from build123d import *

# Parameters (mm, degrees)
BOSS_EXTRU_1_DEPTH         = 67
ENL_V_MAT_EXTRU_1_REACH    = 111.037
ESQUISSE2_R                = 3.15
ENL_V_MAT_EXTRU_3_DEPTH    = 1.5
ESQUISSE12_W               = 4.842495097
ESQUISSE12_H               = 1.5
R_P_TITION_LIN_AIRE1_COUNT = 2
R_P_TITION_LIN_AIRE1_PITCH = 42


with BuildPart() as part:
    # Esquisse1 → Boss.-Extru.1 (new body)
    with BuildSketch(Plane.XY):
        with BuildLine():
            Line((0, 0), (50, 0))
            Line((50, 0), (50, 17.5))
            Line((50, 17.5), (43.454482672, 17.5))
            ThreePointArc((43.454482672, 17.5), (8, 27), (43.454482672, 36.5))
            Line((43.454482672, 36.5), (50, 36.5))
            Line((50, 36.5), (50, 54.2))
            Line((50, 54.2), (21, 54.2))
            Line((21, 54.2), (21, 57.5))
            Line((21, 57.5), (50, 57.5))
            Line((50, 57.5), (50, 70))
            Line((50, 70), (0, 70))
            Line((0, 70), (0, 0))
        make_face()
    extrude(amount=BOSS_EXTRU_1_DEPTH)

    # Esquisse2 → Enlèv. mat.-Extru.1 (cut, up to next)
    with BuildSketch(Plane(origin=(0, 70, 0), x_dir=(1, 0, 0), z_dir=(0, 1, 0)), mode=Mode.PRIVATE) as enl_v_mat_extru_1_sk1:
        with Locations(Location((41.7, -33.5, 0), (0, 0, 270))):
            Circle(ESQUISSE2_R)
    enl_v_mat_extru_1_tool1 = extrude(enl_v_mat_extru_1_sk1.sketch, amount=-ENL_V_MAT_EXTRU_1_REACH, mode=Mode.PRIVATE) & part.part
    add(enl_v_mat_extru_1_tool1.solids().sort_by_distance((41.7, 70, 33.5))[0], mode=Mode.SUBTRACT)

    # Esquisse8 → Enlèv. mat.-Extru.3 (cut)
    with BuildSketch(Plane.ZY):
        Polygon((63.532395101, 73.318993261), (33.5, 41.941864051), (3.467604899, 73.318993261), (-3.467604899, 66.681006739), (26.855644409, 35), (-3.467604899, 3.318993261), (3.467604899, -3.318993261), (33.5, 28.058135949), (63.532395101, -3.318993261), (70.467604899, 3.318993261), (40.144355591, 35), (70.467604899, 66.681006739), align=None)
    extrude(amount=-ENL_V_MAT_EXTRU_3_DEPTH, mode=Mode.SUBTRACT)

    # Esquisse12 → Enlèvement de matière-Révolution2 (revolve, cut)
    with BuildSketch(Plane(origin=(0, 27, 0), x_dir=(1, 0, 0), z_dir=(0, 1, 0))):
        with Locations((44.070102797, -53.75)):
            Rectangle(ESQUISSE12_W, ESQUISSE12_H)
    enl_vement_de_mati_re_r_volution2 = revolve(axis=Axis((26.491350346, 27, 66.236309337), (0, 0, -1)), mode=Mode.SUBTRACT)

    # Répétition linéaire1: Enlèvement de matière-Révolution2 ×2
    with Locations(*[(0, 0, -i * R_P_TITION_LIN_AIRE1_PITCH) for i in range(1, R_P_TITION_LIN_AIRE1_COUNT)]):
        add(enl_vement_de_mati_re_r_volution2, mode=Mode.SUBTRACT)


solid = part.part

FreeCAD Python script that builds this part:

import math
import FreeCAD as App
import Part
import Sketcher

V = App.Vector
Q = App.Units.Quantity

doc = App.newDocument("Part")
body = doc.addObject("PartDesign::Body", "Body")

# Sketch on XY plane
sketch1 = body.newObject("Sketcher::SketchObject", "Sketch")
sketch1.AttachmentSupport = (doc.getObject("XY_Plane"), [""])
sketch1.MapMode = "FlatFace"
sketch1.addGeometry([
    Part.LineSegment(V(0, 0, 0), V(50, 0, 0)),  # 0
    Part.LineSegment(V(50, 0, 0), V(50, 17.5, 0)),  # 1
    Part.LineSegment(V(50, 17.5, 0), V(43.454483, 17.5, 0)),  # 2
    Part.ArcOfCircle(Part.Circle(V(27, 27, 0), V(0, 0, 1), 19), math.radians(30), math.radians(330)),  # 3
    Part.LineSegment(V(43.454483, 36.5, 0), V(50, 36.5, 0)),  # 4
    Part.LineSegment(V(50, 36.5, 0), V(50, 54.2, 0)),  # 5
    Part.LineSegment(V(50, 54.2, 0), V(21, 54.2, 0)),  # 6
    Part.LineSegment(V(21, 54.2, 0), V(21, 57.5, 0)),  # 7
    Part.LineSegment(V(21, 57.5, 0), V(50, 57.5, 0)),  # 8
    Part.LineSegment(V(50, 57.5, 0), V(50, 70, 0)),  # 9
    Part.LineSegment(V(50, 70, 0), V(0, 70, 0)),  # 10
    Part.LineSegment(V(0, 70, 0), V(0, 0, 0)),  # 11
], False)
sketch1.addConstraint([
    Sketcher.Constraint("Coincident", 0, 2, 1, 1),
    Sketcher.Constraint("Coincident", 1, 2, 2, 1),
    Sketcher.Constraint("Coincident", 2, 2, 3, 2),
    Sketcher.Constraint("Coincident", 3, 1, 4, 1),
    Sketcher.Constraint("Coincident", 4, 2, 5, 1),
    Sketcher.Constraint("Coincident", 5, 2, 6, 1),
    Sketcher.Constraint("Coincident", 6, 2, 7, 1),
    Sketcher.Constraint("Coincident", 7, 2, 8, 1),
    Sketcher.Constraint("Coincident", 8, 2, 9, 1),
    Sketcher.Constraint("Coincident", 9, 2, 10, 1),
    Sketcher.Constraint("Coincident", 10, 2, 11, 1),
    Sketcher.Constraint("Coincident", 11, 2, 0, 1),
    Sketcher.Constraint("Horizontal", 0),
    Sketcher.Constraint("Vertical", 1),
    Sketcher.Constraint("Horizontal", 2),
    Sketcher.Constraint("Horizontal", 4),
    Sketcher.Constraint("Vertical", 5),
    Sketcher.Constraint("Horizontal", 6),
    Sketcher.Constraint("Vertical", 7),
    Sketcher.Constraint("Horizontal", 8),
    Sketcher.Constraint("Vertical", 9),
    Sketcher.Constraint("Horizontal", 10),
    Sketcher.Constraint("Vertical", 11),
    Sketcher.Constraint("Coincident", 11, 2, -1, 1),
    Sketcher.Constraint("Vertical", 2, 2, 3, 1),
    Sketcher.Constraint("Vertical", 1, 2, 4, 2),
    Sketcher.Constraint("Vertical", 5, 2, 8, 2),
    Sketcher.Constraint("Radius", 3, Q("19 mm")),
    Sketcher.Constraint("DistanceX", 0, 1, 0, 2, Q("50 mm")),
    Sketcher.Constraint("DistanceX", 6, 2, 6, 1, Q("29 mm")),
    Sketcher.Constraint("DistanceY", 11, 2, 11, 1, Q("70 mm")),
    Sketcher.Constraint("DistanceY", 1, 1, 1, 2, Q("17.5 mm")),
    Sketcher.Constraint("DistanceY", 5, 1, 5, 2, Q("17.7 mm")),
    Sketcher.Constraint("DistanceY", 7, 1, 7, 2, Q("3.3 mm")),
    Sketcher.Constraint("DistanceY", 9, 1, 9, 2, Q("12.5 mm")),
    Sketcher.Constraint("DistanceX", -1, 1, 3, 3, Q("27 mm")),
])
pad1 = body.newObject("PartDesign::Pad", "Pad")
pad1.Profile = sketch1
pad1.Length = 67

# Sketch on XZ plane
sketch2 = body.newObject("Sketcher::SketchObject", "Sketch001")
sketch2.AttachmentSupport = (doc.getObject("XZ_Plane"), [""])
sketch2.MapMode = "FlatFace"
sketch2.AttachmentOffset = App.Placement(V(0, 0, -70), App.Rotation())
sketch2.addGeometry(Part.Circle(V(41.7, 33.5, 0), V(0, 0, 1), 3.15), False)
sketch2.addConstraint([
    Sketcher.Constraint("Diameter", 0, Q("6.3 mm")),
    Sketcher.Constraint("DistanceX", -1, 1, 0, 3, Q("41.7 mm")),
    Sketcher.Constraint("DistanceY", -1, 1, 0, 3, Q("33.5 mm")),
])
pocket1 = body.newObject("PartDesign::Pocket", "Pocket")
pocket1.Profile = sketch2
pocket1.Type = "UpToFirst"
pocket1.Reversed = True

# Sketch on YZ plane
sketch3 = body.newObject("Sketcher::SketchObject", "Sketch002")
sketch3.AttachmentSupport = (doc.getObject("YZ_Plane"), [""])
sketch3.MapMode = "FlatFace"
sketch3.addGeometry([
    Part.LineSegment(V(73.318993, 63.532395, 0), V(41.941864, 33.5, 0)),  # 0
    Part.LineSegment(V(41.941864, 33.5, 0), V(73.318993, 3.467605, 0)),  # 1
    Part.LineSegment(V(73.318993, 3.467605, 0), V(66.681007, -3.467605, 0)),  # 2
    Part.LineSegment(V(66.681007, -3.467605, 0), V(35, 26.855644, 0)),  # 3
    Part.LineSegment(V(35, 26.855644, 0), V(3.318993, -3.467605, 0)),  # 4
    Part.LineSegment(V(3.318993, -3.467605, 0), V(-3.318993, 3.467605, 0)),  # 5
    Part.LineSegment(V(-3.318993, 3.467605, 0), V(28.058136, 33.5, 0)),  # 6
    Part.LineSegment(V(28.058136, 33.5, 0), V(-3.318993, 63.532395, 0)),  # 7
    Part.LineSegment(V(-3.318993, 63.532395, 0), V(3.318993, 70.467605, 0)),  # 8
    Part.LineSegment(V(3.318993, 70.467605, 0), V(35, 40.144356, 0)),  # 9
    Part.LineSegment(V(35, 40.144356, 0), V(66.681007, 70.467605, 0)),  # 10
    Part.LineSegment(V(66.681007, 70.467605, 0), V(73.318993, 63.532395, 0)),  # 11
], False)
sketch3.addConstraint([
    Sketcher.Constraint("Coincident", 0, 2, 1, 1),
    Sketcher.Constraint("Coincident", 1, 2, 2, 1),
    Sketcher.Constraint("Coincident", 2, 2, 3, 1),
    Sketcher.Constraint("Coincident", 3, 2, 4, 1),
    Sketcher.Constraint("Coincident", 4, 2, 5, 1),
    Sketcher.Constraint("Coincident", 5, 2, 6, 1),
    Sketcher.Constraint("Coincident", 6, 2, 7, 1),
    Sketcher.Constraint("Coincident", 7, 2, 8, 1),
    Sketcher.Constraint("Coincident", 8, 2, 9, 1),
    Sketcher.Constraint("Coincident", 9, 2, 10, 1),
    Sketcher.Constraint("Coincident", 10, 2, 11, 1),
    Sketcher.Constraint("Coincident", 11, 2, 0, 1),
    Sketcher.Constraint("Symmetric", 4, 2, 5, 2, -1, 1),
    Sketcher.Constraint("Perpendicular", 1, 2),
    Sketcher.Constraint("Perpendicular", 2, 3),
    Sketcher.Constraint("Parallel", 0, 4),
    Sketcher.Constraint("Perpendicular", 4, 5),
    Sketcher.Constraint("Perpendicular", 5, 6),
    Sketcher.Constraint("Parallel", 3, 7),
    Sketcher.Constraint("Perpendicular", 7, 8),
    Sketcher.Constraint("Perpendicular", 8, 9),
    Sketcher.Constraint("Parallel", 6, 10),
    Sketcher.Constraint("Perpendicular", 10, 11),
    Sketcher.Constraint("Horizontal", 2, 2, 4, 2),
    Sketcher.Constraint("Horizontal", 1, 2, 5, 2),
    Sketcher.Constraint("Horizontal", 0, 2, 6, 2),
    Sketcher.Constraint("Horizontal", 8, 2, 10, 2),
    Sketcher.Constraint("Horizontal", 7, 2, 11, 2),
    Sketcher.Constraint("Vertical", 5, 2, 7, 2),
    Sketcher.Constraint("Vertical", 4, 2, 8, 2),
    Sketcher.Constraint("Vertical", 3, 2, 9, 2),
    Sketcher.Constraint("DistanceX", -1, 1, 3, 2, Q("35 mm")),
    Sketcher.Constraint("DistanceY", 4, 2, 7, 2, Q("67 mm")),
    Sketcher.Constraint("Distance", 2, Q("9.6 mm")),
    Sketcher.Constraint("Distance", 0, Q("43.433501 mm")),
])
pocket2 = body.newObject("PartDesign::Pocket", "Pocket001")
pocket2.Profile = sketch3
pocket2.Length = 1.5
pocket2.Reversed = True

# Sketch on XZ plane
sketch4 = body.newObject("Sketcher::SketchObject", "Sketch003")
sketch4.AttachmentSupport = (doc.getObject("XZ_Plane"), [""])
sketch4.MapMode = "FlatFace"
sketch4.AttachmentOffset = App.Placement(V(0, 0, -27), App.Rotation())
sketch4.addGeometry([
    Part.LineSegment(V(41.648855, 53, 0), V(41.648855, 54.5, 0)),
    Part.LineSegment(V(41.648855, 54.5, 0), V(46.49135, 54.5, 0)),
    Part.LineSegment(V(46.49135, 54.5, 0), V(46.49135, 53, 0)),
    Part.LineSegment(V(46.49135, 53, 0), V(41.648855, 53, 0)),
], False)
sketch4.addGeometry(Part.LineSegment(V(26.49135, 54.5, 0), V(26.49135, 53, 0)), True)  # axis
sketch4.addConstraint([
    Sketcher.Constraint("Coincident", 0, 2, 1, 1),
    Sketcher.Constraint("Coincident", 1, 2, 2, 1),
    Sketcher.Constraint("Coincident", 2, 2, 3, 1),
    Sketcher.Constraint("Coincident", 3, 2, 0, 1),
    Sketcher.Constraint("Vertical", 0),
    Sketcher.Constraint("Horizontal", 1),
    Sketcher.Constraint("Vertical", 2),
    Sketcher.Constraint("Horizontal", 3),
    Sketcher.Constraint("Vertical", 4),
    Sketcher.Constraint("Horizontal", 1, 2, 4, 1),
    Sketcher.Constraint("Horizontal", 3, 2, 4, 2),
    Sketcher.Constraint("DistanceY", 0, 1, 0, 2, Q("1.5 mm")),
    Sketcher.Constraint("DistanceY", -1, 1, 2, 2, Q("53 mm")),
    Sketcher.Constraint("DistanceX", 4, 1, 1, 2, Q("20 mm")),
    Sketcher.Constraint("DistanceX", 1, 1, 1, 2, Q("4.842495 mm")),
    Sketcher.Constraint("DistanceX", -1, 1, 1, 2, Q("46.49135 mm")),
])
groove = body.newObject("PartDesign::Groove", "Groove")
groove.Profile = sketch4
groove.ReferenceAxis = (sketch4, ["Axis0"])
groove.Angle = 360
doc.recompute()

linearpattern = body.newObject("PartDesign::LinearPattern", "LinearPattern")
linearpattern.Originals = [groove]
linearpattern.Direction = (doc.getObject("Z_Axis"), [""])
linearpattern.Mode = "offset"
linearpattern.Offset = 42
linearpattern.Occurrences = 2
linearpattern.Reversed = True
body.Tip = linearpattern

doc.recompute()
